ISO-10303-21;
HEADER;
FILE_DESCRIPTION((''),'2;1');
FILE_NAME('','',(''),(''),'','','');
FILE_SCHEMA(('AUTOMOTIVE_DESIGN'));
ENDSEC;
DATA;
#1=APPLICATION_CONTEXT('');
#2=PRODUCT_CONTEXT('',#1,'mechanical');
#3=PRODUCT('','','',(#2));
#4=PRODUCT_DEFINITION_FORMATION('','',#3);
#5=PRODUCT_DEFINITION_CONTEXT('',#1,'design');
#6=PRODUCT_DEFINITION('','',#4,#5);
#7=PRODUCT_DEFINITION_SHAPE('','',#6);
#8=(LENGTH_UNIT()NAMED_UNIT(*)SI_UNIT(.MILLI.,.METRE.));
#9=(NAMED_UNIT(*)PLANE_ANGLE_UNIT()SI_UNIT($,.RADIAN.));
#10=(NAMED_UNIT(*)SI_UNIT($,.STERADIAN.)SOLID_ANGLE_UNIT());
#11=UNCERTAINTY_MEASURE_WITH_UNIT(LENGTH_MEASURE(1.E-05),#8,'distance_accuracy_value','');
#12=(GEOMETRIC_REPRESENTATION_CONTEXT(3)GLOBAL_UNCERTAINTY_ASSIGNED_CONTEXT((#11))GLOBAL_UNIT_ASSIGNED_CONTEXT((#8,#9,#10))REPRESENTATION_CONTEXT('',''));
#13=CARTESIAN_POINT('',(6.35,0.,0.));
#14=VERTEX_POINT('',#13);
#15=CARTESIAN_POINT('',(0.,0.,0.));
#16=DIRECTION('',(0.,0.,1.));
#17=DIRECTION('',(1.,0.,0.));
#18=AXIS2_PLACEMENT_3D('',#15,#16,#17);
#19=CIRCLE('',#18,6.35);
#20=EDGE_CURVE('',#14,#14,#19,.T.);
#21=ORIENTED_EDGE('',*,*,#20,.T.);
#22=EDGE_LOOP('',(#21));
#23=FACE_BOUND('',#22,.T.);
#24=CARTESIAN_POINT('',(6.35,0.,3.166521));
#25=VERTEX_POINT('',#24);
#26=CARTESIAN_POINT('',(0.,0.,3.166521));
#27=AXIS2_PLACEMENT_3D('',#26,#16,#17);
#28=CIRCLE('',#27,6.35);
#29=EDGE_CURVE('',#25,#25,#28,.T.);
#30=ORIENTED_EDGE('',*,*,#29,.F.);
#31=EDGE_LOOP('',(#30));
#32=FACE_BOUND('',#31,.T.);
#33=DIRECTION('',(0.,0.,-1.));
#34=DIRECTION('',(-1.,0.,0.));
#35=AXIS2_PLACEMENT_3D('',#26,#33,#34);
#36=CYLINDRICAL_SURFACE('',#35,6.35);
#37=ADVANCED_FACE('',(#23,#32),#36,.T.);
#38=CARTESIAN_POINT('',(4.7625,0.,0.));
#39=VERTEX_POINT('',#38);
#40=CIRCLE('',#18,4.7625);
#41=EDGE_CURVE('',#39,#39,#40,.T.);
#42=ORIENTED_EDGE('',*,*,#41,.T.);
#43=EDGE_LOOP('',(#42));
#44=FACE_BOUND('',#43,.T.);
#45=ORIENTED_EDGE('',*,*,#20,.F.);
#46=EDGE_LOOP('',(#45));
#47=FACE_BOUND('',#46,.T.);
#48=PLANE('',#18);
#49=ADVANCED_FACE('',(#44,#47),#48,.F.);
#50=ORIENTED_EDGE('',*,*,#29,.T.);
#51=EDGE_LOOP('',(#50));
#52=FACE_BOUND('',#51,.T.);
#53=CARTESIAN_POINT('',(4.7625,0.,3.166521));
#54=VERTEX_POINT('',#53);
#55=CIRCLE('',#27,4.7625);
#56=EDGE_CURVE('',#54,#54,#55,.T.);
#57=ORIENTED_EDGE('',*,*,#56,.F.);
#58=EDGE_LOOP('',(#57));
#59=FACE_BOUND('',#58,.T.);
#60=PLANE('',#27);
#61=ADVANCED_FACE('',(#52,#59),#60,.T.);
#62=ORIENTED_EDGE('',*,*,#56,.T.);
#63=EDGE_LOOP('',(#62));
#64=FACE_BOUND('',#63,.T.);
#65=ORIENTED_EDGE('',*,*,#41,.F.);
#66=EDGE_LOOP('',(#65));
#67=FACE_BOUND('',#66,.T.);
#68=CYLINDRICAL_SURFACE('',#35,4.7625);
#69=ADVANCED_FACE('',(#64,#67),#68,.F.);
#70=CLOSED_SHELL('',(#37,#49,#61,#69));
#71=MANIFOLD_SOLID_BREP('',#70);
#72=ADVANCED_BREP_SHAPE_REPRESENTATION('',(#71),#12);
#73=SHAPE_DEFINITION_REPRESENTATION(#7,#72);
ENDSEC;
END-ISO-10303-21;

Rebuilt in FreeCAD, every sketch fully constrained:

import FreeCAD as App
import Part
import Sketcher
from FreeCAD import Vector
Q = App.Units.Quantity

doc = App.newDocument("Part")
params = doc.addObject("Spreadsheet::Sheet", "Params")
for row, (alias, value) in enumerate([
    ("sketch1_diameter", "0.5 in"),
    ("sketch1_diameter2", "0.375 in"),
    ("pad1_length", "3.166521 mm"),
], start=1):
    params.set(f"A{row}", alias)
    params.set(f"B{row}", "=" + value)
    params.setAlias(f"B{row}", alias)

body = doc.addObject("PartDesign::Body", "Body")

# Sketch on XY plane
sketch1 = doc.addObject("Sketcher::SketchObject", "Sketch")
body.addObject(sketch1)
sketch1.AttachmentSupport = (doc.XY_Plane, [""])
sketch1.MapMode = "FlatFace"
sketch1.addGeometry([
    Part.Circle(Vector(0, 0, 0), Vector(0, 0, 1), 6.3),
    Part.Circle(Vector(0, 0, 0), Vector(0, 0, 1), 4.8),
], False)
sketch1.addConstraint([
    Sketcher.Constraint("Coincident", 0, 3, -1, 1),
    Sketcher.Constraint("Coincident", 1, 3, -1, 1),
    Sketcher.Constraint("Diameter", 0, Q("0.5 in")),
    Sketcher.Constraint("Diameter", 1, Q("0.375 in")),
])
sketch1.setExpression("Constraints[2]", "Params.sketch1_diameter")
sketch1.setExpression("Constraints[3]", "Params.sketch1_diameter2")
pad1 = doc.addObject("PartDesign::Pad", "Pad")
body.addObject(pad1)
pad1.Profile = sketch1
pad1.setExpression("Length", "Params.pad1_length")

doc.recompute()
